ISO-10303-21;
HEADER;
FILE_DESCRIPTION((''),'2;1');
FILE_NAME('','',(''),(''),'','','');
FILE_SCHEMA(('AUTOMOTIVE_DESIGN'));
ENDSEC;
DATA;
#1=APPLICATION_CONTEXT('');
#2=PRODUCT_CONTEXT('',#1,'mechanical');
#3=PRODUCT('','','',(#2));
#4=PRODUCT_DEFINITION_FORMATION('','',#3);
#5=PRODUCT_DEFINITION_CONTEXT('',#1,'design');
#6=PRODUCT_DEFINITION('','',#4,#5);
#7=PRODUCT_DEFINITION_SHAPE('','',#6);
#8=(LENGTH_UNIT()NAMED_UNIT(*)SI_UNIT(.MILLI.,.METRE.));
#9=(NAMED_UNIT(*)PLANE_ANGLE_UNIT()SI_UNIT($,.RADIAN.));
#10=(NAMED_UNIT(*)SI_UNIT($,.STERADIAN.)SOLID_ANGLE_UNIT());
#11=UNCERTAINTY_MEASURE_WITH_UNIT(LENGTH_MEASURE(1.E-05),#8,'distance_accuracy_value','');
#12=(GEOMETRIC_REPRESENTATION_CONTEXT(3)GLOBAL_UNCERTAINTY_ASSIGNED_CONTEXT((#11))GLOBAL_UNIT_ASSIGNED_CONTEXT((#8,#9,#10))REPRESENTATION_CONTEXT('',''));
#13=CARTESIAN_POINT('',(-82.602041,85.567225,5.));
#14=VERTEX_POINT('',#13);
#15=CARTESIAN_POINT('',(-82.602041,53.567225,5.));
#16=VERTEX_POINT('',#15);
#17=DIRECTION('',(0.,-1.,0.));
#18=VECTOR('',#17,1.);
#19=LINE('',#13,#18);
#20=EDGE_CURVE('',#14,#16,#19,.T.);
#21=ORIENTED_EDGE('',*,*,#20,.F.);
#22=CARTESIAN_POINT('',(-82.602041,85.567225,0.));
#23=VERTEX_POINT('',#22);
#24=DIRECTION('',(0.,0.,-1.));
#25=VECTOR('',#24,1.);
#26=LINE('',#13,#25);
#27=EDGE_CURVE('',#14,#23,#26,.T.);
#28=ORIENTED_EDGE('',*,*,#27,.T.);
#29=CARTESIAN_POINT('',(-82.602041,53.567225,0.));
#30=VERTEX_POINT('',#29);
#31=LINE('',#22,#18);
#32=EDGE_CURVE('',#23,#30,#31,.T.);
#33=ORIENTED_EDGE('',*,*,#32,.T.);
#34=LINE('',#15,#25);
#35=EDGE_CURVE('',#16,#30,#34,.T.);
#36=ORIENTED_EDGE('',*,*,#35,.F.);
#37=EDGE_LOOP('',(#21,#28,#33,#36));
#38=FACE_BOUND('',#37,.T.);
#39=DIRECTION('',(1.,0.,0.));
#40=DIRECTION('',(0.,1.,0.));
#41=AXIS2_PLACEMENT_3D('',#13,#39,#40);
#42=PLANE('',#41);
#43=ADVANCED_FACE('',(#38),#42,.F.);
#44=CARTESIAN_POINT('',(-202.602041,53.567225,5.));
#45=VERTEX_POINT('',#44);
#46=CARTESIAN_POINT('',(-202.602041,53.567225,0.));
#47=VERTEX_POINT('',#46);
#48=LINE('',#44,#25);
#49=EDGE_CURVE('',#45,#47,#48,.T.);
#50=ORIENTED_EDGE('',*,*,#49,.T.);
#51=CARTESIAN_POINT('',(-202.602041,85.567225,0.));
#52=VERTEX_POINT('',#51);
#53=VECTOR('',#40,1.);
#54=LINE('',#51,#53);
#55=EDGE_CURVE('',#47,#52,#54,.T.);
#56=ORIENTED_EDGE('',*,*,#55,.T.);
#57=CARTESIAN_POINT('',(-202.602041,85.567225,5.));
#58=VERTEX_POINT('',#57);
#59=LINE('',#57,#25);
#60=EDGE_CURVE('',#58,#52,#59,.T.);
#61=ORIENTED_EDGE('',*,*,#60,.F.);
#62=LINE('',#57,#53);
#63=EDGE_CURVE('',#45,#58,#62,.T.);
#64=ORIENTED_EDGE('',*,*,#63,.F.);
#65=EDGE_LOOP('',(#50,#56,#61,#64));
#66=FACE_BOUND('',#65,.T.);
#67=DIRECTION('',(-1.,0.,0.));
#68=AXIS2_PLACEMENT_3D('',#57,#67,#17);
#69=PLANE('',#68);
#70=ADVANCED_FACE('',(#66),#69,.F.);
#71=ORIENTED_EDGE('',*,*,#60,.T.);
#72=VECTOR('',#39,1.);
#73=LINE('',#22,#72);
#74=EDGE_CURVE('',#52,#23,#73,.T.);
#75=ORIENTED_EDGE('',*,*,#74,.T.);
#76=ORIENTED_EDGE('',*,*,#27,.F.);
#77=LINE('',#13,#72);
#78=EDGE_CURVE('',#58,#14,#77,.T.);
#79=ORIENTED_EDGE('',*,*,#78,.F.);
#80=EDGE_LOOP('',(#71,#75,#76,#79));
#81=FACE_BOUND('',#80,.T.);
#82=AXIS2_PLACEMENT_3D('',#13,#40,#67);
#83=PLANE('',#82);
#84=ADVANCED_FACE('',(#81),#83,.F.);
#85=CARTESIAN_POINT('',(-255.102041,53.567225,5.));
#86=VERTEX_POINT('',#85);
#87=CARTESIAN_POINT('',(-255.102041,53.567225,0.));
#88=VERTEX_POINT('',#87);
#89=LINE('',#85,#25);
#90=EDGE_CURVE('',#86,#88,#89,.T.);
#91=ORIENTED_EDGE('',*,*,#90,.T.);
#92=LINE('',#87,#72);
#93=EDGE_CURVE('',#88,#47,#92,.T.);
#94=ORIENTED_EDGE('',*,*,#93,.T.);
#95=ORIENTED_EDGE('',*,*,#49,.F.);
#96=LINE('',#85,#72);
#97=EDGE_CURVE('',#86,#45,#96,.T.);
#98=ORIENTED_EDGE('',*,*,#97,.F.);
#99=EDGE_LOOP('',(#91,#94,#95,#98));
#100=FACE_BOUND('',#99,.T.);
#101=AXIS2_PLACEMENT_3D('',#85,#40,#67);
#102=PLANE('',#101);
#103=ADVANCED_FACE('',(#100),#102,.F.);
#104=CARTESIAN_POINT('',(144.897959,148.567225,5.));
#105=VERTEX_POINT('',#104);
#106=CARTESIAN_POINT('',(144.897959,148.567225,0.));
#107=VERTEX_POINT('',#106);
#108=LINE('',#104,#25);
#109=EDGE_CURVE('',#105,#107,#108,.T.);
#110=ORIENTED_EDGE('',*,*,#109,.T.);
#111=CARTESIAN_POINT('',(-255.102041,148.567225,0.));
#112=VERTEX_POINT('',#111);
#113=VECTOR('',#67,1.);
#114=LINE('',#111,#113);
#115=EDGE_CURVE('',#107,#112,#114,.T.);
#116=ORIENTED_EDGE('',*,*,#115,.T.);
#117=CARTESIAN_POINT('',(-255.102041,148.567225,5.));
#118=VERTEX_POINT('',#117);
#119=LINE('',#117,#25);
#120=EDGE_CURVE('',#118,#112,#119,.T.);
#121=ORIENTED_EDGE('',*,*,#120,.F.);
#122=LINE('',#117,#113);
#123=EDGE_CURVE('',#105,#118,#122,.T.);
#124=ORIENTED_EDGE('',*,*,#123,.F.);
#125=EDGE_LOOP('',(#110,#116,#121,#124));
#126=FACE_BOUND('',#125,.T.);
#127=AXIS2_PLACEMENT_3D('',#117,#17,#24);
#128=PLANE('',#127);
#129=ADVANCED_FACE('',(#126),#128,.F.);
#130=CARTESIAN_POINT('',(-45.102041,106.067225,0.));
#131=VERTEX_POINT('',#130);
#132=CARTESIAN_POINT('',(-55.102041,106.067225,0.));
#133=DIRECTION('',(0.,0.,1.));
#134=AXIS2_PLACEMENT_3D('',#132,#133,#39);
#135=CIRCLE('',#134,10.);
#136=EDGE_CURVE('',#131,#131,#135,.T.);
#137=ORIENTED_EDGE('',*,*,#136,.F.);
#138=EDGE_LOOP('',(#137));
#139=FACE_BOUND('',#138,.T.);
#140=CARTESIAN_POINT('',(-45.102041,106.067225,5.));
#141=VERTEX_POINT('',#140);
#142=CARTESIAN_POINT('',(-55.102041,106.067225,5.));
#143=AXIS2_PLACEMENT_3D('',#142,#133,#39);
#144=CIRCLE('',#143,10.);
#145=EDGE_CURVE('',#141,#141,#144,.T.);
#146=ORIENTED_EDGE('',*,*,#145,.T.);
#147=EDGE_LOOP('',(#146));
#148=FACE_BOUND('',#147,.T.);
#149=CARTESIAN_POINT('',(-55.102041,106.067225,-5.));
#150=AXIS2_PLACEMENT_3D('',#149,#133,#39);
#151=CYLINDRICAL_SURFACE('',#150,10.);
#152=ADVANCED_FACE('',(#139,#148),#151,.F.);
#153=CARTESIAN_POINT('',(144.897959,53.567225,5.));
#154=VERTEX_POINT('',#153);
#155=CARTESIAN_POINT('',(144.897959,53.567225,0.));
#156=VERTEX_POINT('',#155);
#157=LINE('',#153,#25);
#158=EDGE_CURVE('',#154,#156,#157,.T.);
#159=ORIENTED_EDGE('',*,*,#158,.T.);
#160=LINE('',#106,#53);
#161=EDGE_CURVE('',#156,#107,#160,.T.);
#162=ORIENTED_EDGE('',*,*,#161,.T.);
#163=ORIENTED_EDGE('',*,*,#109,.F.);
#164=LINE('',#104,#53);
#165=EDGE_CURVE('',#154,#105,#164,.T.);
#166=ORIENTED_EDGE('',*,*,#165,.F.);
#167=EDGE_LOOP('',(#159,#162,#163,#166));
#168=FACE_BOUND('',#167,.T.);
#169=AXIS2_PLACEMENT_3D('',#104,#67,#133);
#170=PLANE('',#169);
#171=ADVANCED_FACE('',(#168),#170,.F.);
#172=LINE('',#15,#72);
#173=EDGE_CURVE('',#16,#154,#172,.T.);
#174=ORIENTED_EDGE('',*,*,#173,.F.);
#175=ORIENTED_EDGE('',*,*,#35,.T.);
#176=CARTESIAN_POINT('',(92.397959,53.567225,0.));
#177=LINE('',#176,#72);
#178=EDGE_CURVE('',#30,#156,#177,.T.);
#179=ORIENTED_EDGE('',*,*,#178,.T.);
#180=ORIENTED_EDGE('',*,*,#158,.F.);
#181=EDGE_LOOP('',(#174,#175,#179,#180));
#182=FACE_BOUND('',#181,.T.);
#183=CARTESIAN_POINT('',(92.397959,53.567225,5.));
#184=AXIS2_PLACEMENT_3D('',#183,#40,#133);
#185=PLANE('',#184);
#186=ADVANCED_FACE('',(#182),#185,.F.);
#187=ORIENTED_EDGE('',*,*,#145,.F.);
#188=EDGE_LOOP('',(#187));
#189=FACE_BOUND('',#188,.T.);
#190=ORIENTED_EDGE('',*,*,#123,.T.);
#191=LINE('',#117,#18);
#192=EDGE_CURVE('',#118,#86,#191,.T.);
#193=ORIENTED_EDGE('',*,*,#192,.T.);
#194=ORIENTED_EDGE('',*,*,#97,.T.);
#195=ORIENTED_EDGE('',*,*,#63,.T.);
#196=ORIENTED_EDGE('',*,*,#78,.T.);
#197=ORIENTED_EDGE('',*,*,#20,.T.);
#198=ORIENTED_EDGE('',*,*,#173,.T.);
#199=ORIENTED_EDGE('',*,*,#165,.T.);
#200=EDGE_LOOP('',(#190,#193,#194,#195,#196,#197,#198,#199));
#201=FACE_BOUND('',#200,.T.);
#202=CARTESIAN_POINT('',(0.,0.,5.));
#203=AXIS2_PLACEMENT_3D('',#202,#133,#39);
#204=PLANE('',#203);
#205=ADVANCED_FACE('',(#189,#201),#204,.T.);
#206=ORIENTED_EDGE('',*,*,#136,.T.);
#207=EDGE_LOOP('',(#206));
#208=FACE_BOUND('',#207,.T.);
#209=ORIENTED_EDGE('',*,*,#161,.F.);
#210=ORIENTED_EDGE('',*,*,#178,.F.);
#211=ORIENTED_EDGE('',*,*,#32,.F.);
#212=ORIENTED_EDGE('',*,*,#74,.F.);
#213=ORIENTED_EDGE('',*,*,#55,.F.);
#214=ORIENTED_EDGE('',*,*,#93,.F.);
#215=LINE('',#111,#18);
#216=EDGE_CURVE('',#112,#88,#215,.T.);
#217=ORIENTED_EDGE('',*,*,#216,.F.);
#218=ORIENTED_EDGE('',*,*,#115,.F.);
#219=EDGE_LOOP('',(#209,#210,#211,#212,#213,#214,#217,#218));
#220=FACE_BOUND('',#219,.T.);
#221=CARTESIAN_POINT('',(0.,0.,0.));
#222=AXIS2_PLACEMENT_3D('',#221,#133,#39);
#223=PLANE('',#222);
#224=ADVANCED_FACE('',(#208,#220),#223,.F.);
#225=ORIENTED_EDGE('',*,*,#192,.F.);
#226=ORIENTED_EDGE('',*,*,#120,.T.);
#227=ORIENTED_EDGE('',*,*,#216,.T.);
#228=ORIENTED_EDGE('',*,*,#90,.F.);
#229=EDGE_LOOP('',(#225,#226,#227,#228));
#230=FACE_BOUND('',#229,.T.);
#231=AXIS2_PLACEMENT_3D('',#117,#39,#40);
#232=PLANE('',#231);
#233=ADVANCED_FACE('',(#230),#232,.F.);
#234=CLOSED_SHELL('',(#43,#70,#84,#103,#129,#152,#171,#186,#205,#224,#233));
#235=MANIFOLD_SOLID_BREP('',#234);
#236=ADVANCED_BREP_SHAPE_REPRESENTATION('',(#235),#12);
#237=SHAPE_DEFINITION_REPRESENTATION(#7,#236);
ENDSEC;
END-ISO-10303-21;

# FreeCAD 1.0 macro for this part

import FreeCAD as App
import Part
import Sketcher

V = App.Vector

doc = App.newDocument("Part")
body = doc.addObject("PartDesign::Body", "Body")

sketch1 = body.newObject("Sketcher::SketchObject", "Sketch")
sketch1.AttachmentSupport = (doc.getObject("XY_Plane"), [""])
sketch1.MapMode = "FlatFace"
sketch1.addGeometry([
    Part.LineSegment(V(145, 149, 0), V(-255, 149, 0)),
    Part.LineSegment(V(-255, 149, 0), V(-255, 54, 0)),
    Part.LineSegment(V(-255, 54, 0), V(-203, 54, 0)),
    Part.LineSegment(V(-203, 54, 0), V(-203, 86, 0)),
    Part.LineSegment(V(-203, 86, 0), V(-83, 86, 0)),
    Part.LineSegment(V(-83, 86, 0), V(-83, 54, 0)),
    Part.LineSegment(V(-83, 54, 0), V(145, 54, 0)),
    Part.LineSegment(V(145, 54, 0), V(145, 149, 0)),
], False)
sketch1.addConstraint([
    Sketcher.Constraint("Coincident", 0, 2, 1, 1),
    Sketcher.Constraint("Coincident", 1, 2, 2, 1),
    Sketcher.Constraint("Coincident", 2, 2, 3, 1),
    Sketcher.Constraint("Coincident", 3, 2, 4, 1),
    Sketcher.Constraint("Coincident", 4, 2, 5, 1),
    Sketcher.Constraint("Coincident", 5, 2, 6, 1),
    Sketcher.Constraint("Coincident", 6, 2, 7, 1),
    Sketcher.Constraint("Coincident", 7, 2, 0, 1),
    Sketcher.Constraint("Horizontal", 0),
    Sketcher.Constraint("Vertical", 1),
    Sketcher.Constraint("Horizontal", 2),
    Sketcher.Constraint("Vertical", 3),
    Sketcher.Constraint("Horizontal", 4),
    Sketcher.Constraint("Vertical", 5),
    Sketcher.Constraint("Horizontal", 6),
    Sketcher.Constraint("Vertical", 7),
    Sketcher.Constraint("Horizontal", 2, 2, 5, 2),
    Sketcher.Constraint("DistanceX", 0, 2, 0, 1, 400.0),
    Sketcher.Constraint("DistanceX", 4, 1, 4, 2, 120.0),
    Sketcher.Constraint("DistanceY", 1, 2, 1, 1, 95.0),
    Sketcher.Constraint("DistanceY", 3, 1, 3, 2, 32.0),
    Sketcher.Constraint("DistanceX", 2, 1, 2, 2, 52.5),
    Sketcher.Constraint("DistanceX", 0, 2, -1, 1, 255.102041),
    Sketcher.Constraint("DistanceY", -1, 1, 0, 2, 148.567225),
])
pad1 = body.newObject("PartDesign::Pad", "Pad")
pad1.Profile = sketch1
pad1.Length = 5

sketch2 = body.newObject("Sketcher::SketchObject", "Sketch001")
sketch2.AttachmentSupport = (doc.getObject("XY_Plane"), [""])
sketch2.MapMode = "FlatFace"
sketch2.AttachmentOffset = App.Placement(V(0, 0, 5), App.Rotation())
sketch2.addGeometry(Part.Circle(V(-55, 106, 0), V(0, 0, 1), 10), False)
sketch2.addConstraint([
    Sketcher.Constraint("Diameter", 0, 20.0),
    Sketcher.Constraint("DistanceX", 0, 3, -1, 1, 55.102041),
    Sketcher.Constraint("DistanceY", -1, 1, 0, 3, 106.067225),
])
pocket1 = body.newObject("PartDesign::Pocket", "Pocket")
pocket1.Profile = sketch2
pocket1.Length = 10

doc.recompute()
